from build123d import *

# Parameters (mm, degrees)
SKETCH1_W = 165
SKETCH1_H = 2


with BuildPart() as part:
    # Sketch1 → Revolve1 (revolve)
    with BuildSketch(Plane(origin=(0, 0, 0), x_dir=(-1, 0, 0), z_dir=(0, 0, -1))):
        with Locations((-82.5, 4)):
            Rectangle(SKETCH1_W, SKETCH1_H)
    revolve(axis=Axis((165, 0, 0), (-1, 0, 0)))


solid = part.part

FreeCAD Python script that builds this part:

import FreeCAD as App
import Part
import Sketcher
from FreeCAD import Vector
Q = App.Units.Quantity


def add_polygon(sketch, points):
    """Adds a closed chain of lines whose ends are joined by coincident constraints."""
    first, n = sketch.GeometryCount, len(points)
    for a, b in zip(points, points[1:] + points[:1]):
        sketch.addGeometry(Part.LineSegment(App.Vector(*a, 0), App.Vector(*b, 0)), False)
    for i in range(n):
        sketch.addConstraint(Sketcher.Constraint("Coincident", first + i, 2, first + (i + 1) % n, 1))

doc = App.newDocument("Part")
body = doc.addObject("PartDesign::Body", "Body")

sketch1 = body.newObject("Sketcher::SketchObject", "Sketch")
sketch1.AttachmentSupport = (doc.getObject("XY_Plane"), [""])
sketch1.MapMode = "FlatFace"
add_polygon(sketch1, [(165, 5), (165, 3), (0, 3), (0, 5)])
sketch1.addConstraint([
    Sketcher.Constraint("Vertical", 0),
    Sketcher.Constraint("Horizontal", 1),
    Sketcher.Constraint("Vertical", 2),
    Sketcher.Constraint("Horizontal", 3),
    Sketcher.Constraint("PointOnObject", 1, 2, -2),
    Sketcher.Constraint("DistanceX", 1, 2, 1, 1, Q("165 mm")),
    Sketcher.Constraint("DistanceY", 0, 2, 0, 1, Q("2 mm")),
    Sketcher.Constraint("DistanceY", -1, 1, 0, 2, Q("3 mm")),
])
revolution = body.newObject("PartDesign::Revolution", "Revolution")
revolution.Profile = sketch1
revolution.ReferenceAxis = (sketch1, ["H_Axis"])
revolution.Angle = 360

doc.recompute()
